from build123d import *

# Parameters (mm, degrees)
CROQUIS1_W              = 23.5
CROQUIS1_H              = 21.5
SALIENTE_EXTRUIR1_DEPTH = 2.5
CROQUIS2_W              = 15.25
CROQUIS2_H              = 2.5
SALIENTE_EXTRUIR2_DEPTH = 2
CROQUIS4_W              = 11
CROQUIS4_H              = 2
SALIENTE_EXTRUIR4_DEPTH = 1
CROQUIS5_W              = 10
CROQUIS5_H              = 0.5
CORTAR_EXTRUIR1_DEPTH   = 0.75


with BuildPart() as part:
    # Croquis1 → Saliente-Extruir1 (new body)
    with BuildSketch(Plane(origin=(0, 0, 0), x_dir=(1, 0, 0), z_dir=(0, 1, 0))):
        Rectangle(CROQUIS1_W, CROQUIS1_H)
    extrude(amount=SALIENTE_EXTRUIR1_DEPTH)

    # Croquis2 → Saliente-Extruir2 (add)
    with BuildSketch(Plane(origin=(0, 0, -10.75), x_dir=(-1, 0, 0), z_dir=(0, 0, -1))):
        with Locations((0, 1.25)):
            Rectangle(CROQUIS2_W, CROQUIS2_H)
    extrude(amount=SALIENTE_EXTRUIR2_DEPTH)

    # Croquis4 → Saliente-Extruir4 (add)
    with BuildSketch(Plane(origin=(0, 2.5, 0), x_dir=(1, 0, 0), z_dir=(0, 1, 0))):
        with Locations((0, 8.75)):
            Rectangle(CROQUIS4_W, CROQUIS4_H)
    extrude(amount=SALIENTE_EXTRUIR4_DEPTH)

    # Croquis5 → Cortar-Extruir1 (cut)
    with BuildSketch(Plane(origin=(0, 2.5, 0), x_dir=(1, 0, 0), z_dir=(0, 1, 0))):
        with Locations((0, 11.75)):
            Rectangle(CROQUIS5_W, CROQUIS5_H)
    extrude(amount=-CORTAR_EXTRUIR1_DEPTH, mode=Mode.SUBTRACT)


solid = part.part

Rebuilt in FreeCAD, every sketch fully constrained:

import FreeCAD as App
import Part
import Sketcher
from FreeCAD import Vector
Q = App.Units.Quantity

doc = App.newDocument("Part")
body = doc.addObject("PartDesign::Body", "Body")

# Sketch on XZ plane
sketch1 = doc.addObject("Sketcher::SketchObject", "Sketch")
body.addObject(sketch1)
sketch1.AttachmentSupport = (doc.XZ_Plane, [""])
sketch1.MapMode = "FlatFace"
sketch1.addGeometry([
    Part.LineSegment(Vector(-12, -11, 0), Vector(-12, 11, 0)),
    Part.LineSegment(Vector(-12, 11, 0), Vector(12, 11, 0)),
    Part.LineSegment(Vector(12, 11, 0), Vector(12, -11, 0)),
    Part.LineSegment(Vector(12, -11, 0), Vector(-12, -11, 0)),
], False)
sketch1.addConstraint([
    Sketcher.Constraint("Coincident", 0, 2, 1, 1),
    Sketcher.Constraint("Coincident", 1, 2, 2, 1),
    Sketcher.Constraint("Coincident", 2, 2, 3, 1),
    Sketcher.Constraint("Coincident", 3, 2, 0, 1),
    Sketcher.Constraint("Vertical", 0),
    Sketcher.Constraint("Horizontal", 1),
    Sketcher.Constraint("Vertical", 2),
    Sketcher.Constraint("Horizontal", 3),
    Sketcher.Constraint("Symmetric", 0, 2, 2, 2, -1, 1),
    Sketcher.Constraint("DistanceX", 1, 1, 1, 2, Q("23.5 mm")),
    Sketcher.Constraint("DistanceY", 0, 1, 0, 2, Q("21.5 mm")),
])
pad1 = doc.addObject("PartDesign::Pad", "Pad")
body.addObject(pad1)
pad1.Profile = sketch1
pad1.Length = 2.5
pad1.Reversed = True

# Sketch on XY plane
sketch2 = doc.addObject("Sketcher::SketchObject", "Sketch001")
body.addObject(sketch2)
sketch2.AttachmentSupport = (doc.XY_Plane, [""])
sketch2.MapMode = "FlatFace"
sketch2.AttachmentOffset = App.Placement(Vector(0, 0, -10.75), App.Rotation())
sketch2.addGeometry([
    Part.LineSegment(Vector(7.6, 2.5, 0), Vector(7.6, 0, 0)),
    Part.LineSegment(Vector(7.6, 0, 0), Vector(-7.6, 0, 0)),
    Part.LineSegment(Vector(-7.6, 0, 0), Vector(-7.6, 2.5, 0)),
    Part.LineSegment(Vector(-7.6, 2.5, 0), Vector(7.6, 2.5, 0)),
], False)
sketch2.addConstraint([
    Sketcher.Constraint("Coincident", 0, 2, 1, 1),
    Sketcher.Constraint("Coincident", 1, 2, 2, 1),
    Sketcher.Constraint("Coincident", 2, 2, 3, 1),
    Sketcher.Constraint("Coincident", 3, 2, 0, 1),
    Sketcher.Constraint("Vertical", 0),
    Sketcher.Constraint("Horizontal", 1),
    Sketcher.Constraint("Vertical", 2),
    Sketcher.Constraint("Horizontal", 3),
    Sketcher.Constraint("Symmetric", 0, 2, 1, 2, -1, 1),
    Sketcher.Constraint("DistanceY", 0, 2, 0, 1, Q("2.5 mm")),
    Sketcher.Constraint("DistanceX", 1, 2, 1, 1, Q("15.25 mm")),
])
pad2 = doc.addObject("PartDesign::Pad", "Pad001")
body.addObject(pad2)
pad2.Profile = sketch2
pad2.Length = 2
pad2.Reversed = True

# Sketch on XZ plane
sketch3 = doc.addObject("Sketcher::SketchObject", "Sketch002")
body.addObject(sketch3)
sketch3.AttachmentSupport = (doc.XZ_Plane, [""])
sketch3.MapMode = "FlatFace"
sketch3.AttachmentOffset = App.Placement(Vector(0, 0, -2.5), App.Rotation())
sketch3.addGeometry([
    Part.LineSegment(Vector(-5.5, -9.8, 0), Vector(-5.5, -7.8, 0)),
    Part.LineSegment(Vector(-5.5, -7.8, 0), Vector(5.5, -7.8, 0)),
    Part.LineSegment(Vector(5.5, -7.8, 0), Vector(5.5, -9.8, 0)),
    Part.LineSegment(Vector(5.5, -9.8, 0), Vector(-5.5, -9.8, 0)),
], False)
sketch3.addConstraint([
    Sketcher.Constraint("Coincident", 0, 2, 1, 1),
    Sketcher.Constraint("Coincident", 1, 2, 2, 1),
    Sketcher.Constraint("Coincident", 2, 2, 3, 1),
    Sketcher.Constraint("Coincident", 3, 2, 0, 1),
    Sketcher.Constraint("Vertical", 0),
    Sketcher.Constraint("Horizontal", 1),
    Sketcher.Constraint("Vertical", 2),
    Sketcher.Constraint("Horizontal", 3),
    Sketcher.Constraint("DistanceX", 1, 1, 1, 2, Q("11 mm")),
    Sketcher.Constraint("DistanceY", 0, 1, 0, 2, Q("2 mm")),
    Sketcher.Constraint("DistanceX", 0, 2, -1, 1, Q("5.5 mm")),
    Sketcher.Constraint("DistanceY", 0, 2, -1, 1, Q("7.75 mm")),
])
pad3 = doc.addObject("PartDesign::Pad", "Pad002")
body.addObject(pad3)
pad3.Profile = sketch3
pad3.Length = 1
pad3.Reversed = True

# Sketch on XZ plane
sketch4 = doc.addObject("Sketcher::SketchObject", "Sketch003")
body.addObject(sketch4)
sketch4.AttachmentSupport = (doc.XZ_Plane, [""])
sketch4.MapMode = "FlatFace"
sketch4.AttachmentOffset = App.Placement(Vector(0, 0, -2.5), App.Rotation())
sketch4.addGeometry([
    Part.LineSegment(Vector(-5, -12, 0), Vector(-5, -11.5, 0)),
    Part.LineSegment(Vector(-5, -11.5, 0), Vector(5, -11.5, 0)),
    Part.LineSegment(Vector(5, -11.5, 0), Vector(5, -12, 0)),
    Part.LineSegment(Vector(5, -12, 0), Vector(-5, -12, 0)),
], False)
sketch4.addConstraint([
    Sketcher.Constraint("Coincident", 0, 2, 1, 1),
    Sketcher.Constraint("Coincident", 1, 2, 2, 1),
    Sketcher.Constraint("Coincident", 2, 2, 3, 1),
    Sketcher.Constraint("Coincident", 3, 2, 0, 1),
    Sketcher.Constraint("Vertical", 0),
    Sketcher.Constraint("Horizontal", 1),
    Sketcher.Constraint("Vertical", 2),
    Sketcher.Constraint("Horizontal", 3),
    Sketcher.Constraint("DistanceX", 1, 1, 1, 2, Q("10 mm")),
    Sketcher.Constraint("DistanceY", 0, 1, 0, 2, Q("0.5 mm")),
    Sketcher.Constraint("DistanceX", 0, 2, -1, 1, Q("5 mm")),
    Sketcher.Constraint("DistanceY", 2, 2, -1, 1, Q("12 mm")),
])
pocket1 = doc.addObject("PartDesign::Pocket", "Pocket")
body.addObject(pocket1)
pocket1.Profile = sketch4
pocket1.Length = 0.75
pocket1.Reversed = True

doc.recompute()
